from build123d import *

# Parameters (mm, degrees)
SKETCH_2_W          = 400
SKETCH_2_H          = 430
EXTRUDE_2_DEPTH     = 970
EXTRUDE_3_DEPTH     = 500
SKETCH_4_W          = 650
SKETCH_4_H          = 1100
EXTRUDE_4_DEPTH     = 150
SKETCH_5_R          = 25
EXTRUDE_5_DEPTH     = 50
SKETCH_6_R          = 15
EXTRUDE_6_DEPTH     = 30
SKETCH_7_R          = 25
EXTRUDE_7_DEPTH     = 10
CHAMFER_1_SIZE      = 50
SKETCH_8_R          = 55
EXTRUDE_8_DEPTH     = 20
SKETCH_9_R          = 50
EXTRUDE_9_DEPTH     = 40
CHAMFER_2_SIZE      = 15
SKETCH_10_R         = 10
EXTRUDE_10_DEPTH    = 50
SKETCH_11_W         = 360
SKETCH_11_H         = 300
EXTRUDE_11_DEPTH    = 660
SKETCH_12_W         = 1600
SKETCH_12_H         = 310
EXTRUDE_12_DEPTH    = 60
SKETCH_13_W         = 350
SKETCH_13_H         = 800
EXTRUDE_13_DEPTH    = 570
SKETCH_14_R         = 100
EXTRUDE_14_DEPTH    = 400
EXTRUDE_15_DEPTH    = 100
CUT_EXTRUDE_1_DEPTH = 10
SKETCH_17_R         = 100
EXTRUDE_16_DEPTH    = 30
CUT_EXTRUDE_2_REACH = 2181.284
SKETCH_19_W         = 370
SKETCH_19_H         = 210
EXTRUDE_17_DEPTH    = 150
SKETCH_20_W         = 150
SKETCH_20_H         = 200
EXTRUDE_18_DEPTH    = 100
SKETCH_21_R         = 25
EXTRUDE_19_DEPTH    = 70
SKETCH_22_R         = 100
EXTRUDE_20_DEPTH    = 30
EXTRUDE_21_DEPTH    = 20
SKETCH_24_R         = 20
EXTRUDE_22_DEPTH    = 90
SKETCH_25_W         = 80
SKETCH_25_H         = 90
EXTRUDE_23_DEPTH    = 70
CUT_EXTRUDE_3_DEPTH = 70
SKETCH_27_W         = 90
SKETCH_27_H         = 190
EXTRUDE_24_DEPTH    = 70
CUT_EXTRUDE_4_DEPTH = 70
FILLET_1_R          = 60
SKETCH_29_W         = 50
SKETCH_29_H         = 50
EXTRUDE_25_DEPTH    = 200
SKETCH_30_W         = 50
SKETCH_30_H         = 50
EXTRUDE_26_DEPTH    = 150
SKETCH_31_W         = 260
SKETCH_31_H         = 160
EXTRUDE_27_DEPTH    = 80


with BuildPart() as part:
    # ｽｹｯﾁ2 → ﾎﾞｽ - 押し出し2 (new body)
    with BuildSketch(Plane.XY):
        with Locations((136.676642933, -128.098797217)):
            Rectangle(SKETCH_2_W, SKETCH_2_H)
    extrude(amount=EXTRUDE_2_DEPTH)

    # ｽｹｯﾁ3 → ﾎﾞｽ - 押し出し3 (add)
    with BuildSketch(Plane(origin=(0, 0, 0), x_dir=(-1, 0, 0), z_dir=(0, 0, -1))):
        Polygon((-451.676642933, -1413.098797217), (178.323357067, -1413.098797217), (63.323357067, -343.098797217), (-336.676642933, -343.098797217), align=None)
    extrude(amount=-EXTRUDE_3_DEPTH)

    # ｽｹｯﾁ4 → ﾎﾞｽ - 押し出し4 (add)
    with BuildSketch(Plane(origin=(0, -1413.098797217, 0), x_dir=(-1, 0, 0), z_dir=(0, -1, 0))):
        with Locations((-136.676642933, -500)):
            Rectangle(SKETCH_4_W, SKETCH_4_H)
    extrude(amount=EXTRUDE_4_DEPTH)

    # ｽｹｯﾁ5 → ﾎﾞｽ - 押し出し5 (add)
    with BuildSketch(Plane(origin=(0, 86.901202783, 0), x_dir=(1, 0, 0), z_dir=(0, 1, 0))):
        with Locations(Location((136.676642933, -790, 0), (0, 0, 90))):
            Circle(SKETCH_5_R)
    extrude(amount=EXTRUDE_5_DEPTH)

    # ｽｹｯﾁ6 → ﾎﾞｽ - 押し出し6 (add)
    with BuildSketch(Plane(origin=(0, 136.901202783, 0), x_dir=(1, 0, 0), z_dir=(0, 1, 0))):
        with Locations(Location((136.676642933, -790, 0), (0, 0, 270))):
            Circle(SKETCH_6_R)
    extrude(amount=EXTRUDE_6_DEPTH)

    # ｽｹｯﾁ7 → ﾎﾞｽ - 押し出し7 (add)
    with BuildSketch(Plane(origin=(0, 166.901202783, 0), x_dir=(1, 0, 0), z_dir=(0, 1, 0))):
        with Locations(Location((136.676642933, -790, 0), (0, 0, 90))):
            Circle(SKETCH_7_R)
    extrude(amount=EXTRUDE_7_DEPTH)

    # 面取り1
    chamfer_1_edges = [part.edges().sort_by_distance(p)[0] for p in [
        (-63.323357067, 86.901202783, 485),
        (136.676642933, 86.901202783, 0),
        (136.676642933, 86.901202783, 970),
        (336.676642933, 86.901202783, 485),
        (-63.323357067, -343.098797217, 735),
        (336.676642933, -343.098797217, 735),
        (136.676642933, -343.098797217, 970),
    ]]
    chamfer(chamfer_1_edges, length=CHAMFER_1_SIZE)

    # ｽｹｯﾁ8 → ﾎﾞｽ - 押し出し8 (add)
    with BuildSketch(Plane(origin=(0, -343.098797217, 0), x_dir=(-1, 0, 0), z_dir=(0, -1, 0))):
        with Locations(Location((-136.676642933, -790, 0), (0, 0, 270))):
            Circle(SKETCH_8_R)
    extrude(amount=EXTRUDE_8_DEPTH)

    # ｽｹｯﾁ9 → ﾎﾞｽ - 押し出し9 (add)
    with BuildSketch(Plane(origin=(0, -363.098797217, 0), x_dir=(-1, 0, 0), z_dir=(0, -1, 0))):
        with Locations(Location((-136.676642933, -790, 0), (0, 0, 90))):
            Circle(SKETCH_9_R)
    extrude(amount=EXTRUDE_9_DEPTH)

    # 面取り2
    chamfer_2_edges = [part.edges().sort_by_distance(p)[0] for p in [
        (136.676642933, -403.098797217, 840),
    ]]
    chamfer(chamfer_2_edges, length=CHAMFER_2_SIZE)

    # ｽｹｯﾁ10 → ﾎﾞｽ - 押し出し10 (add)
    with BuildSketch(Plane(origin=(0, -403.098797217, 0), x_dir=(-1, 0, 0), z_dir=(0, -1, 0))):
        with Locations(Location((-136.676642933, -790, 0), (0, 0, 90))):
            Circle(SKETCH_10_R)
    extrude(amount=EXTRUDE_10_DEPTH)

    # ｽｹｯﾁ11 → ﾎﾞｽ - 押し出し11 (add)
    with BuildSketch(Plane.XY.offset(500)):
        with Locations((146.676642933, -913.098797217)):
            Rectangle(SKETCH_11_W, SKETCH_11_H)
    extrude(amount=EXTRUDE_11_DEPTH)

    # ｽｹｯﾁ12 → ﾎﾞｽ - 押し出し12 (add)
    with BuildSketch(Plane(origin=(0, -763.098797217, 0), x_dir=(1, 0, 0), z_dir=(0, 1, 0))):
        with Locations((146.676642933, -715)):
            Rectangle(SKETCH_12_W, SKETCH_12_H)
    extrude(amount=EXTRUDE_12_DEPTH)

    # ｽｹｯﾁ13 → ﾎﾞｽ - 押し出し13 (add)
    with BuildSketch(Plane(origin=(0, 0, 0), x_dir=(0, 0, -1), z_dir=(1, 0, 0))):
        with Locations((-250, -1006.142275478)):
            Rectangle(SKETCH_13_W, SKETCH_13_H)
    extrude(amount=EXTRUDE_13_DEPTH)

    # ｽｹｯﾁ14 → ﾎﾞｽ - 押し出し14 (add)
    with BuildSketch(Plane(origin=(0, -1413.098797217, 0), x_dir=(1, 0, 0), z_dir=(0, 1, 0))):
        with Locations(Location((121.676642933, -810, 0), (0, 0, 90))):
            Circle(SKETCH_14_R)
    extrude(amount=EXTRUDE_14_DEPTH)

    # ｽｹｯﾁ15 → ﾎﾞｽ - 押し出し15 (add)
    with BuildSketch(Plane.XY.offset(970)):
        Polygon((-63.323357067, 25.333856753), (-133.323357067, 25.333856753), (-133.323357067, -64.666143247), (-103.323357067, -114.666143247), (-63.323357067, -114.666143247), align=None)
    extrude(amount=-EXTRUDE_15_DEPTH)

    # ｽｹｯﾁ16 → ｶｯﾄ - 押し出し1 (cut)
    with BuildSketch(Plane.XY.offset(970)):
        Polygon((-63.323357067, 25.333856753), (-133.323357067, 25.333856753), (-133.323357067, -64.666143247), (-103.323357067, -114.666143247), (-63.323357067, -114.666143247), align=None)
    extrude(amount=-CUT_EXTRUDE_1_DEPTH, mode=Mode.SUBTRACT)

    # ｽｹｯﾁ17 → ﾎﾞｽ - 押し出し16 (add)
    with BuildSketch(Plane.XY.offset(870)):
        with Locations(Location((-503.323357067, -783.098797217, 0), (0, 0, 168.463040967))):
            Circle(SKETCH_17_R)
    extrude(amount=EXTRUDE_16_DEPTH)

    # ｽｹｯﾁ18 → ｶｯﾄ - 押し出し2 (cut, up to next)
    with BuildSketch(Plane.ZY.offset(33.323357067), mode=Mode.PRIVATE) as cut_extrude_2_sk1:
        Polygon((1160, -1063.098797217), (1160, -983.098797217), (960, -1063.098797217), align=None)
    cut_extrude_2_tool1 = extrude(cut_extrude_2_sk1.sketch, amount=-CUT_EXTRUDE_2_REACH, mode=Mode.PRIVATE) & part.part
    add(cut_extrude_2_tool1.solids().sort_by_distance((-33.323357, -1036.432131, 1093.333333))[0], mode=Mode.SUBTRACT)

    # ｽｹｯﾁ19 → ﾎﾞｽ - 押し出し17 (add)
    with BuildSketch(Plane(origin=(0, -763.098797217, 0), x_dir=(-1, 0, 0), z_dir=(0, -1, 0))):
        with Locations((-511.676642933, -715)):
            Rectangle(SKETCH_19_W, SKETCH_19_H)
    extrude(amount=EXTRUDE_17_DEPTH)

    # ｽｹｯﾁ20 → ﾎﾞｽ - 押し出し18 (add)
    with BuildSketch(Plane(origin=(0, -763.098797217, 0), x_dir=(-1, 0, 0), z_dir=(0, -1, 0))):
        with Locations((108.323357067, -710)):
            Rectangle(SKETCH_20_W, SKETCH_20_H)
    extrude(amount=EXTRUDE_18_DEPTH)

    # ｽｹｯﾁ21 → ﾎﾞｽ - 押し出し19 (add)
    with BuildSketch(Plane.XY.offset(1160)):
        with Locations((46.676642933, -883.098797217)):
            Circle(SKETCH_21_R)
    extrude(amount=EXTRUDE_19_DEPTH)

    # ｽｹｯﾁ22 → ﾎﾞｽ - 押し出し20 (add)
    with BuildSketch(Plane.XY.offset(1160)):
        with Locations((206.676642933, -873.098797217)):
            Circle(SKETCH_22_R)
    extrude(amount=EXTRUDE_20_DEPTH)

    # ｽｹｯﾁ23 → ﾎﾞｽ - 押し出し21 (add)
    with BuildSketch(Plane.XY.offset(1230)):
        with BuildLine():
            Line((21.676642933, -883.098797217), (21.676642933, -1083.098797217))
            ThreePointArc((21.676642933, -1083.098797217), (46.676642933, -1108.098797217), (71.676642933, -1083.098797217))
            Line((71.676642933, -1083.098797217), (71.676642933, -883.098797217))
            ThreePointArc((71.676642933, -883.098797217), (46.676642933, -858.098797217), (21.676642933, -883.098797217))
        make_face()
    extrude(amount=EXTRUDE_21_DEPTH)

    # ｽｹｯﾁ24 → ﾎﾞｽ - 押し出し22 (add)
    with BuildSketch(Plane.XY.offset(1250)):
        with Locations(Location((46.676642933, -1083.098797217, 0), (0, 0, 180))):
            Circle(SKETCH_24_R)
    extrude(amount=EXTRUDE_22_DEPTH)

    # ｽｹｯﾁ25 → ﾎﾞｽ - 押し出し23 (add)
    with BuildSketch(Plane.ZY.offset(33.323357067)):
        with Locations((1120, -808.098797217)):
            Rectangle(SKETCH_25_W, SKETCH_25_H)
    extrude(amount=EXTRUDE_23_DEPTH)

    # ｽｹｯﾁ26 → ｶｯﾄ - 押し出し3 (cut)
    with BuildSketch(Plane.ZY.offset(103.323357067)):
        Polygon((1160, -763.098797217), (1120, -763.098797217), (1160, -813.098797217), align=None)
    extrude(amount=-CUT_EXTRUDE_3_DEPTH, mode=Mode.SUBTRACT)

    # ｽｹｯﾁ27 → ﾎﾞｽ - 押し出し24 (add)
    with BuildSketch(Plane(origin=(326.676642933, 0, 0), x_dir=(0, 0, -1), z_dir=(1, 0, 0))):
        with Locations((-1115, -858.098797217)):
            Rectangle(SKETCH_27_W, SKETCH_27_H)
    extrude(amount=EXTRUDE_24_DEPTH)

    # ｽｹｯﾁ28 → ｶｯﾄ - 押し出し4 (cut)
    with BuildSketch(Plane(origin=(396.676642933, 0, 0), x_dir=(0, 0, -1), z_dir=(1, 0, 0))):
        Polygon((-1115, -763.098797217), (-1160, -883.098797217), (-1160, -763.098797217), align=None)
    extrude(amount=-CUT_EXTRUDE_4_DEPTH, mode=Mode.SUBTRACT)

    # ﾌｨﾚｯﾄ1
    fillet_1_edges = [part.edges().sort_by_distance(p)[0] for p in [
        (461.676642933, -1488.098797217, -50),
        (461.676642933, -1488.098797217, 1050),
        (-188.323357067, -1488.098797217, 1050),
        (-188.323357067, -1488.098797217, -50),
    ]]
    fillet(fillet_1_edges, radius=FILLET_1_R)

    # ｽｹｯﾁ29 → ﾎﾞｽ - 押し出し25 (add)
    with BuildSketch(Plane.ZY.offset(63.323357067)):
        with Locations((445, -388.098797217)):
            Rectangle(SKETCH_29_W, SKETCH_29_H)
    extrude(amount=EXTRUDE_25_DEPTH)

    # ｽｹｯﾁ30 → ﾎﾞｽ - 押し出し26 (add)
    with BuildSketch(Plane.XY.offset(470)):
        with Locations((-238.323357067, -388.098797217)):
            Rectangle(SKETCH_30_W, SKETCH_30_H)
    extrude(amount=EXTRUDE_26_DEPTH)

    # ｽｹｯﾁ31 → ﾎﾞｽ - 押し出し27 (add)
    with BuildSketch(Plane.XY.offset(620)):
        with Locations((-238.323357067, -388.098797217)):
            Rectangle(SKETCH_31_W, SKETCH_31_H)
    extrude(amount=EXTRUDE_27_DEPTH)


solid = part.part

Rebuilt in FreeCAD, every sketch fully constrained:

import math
import FreeCAD as App
import Part
import Sketcher
from FreeCAD import Vector
Q = App.Units.Quantity


def edges_at(feature, points):
    """Names of the edges that pass closest to the given points."""
    edges = feature.Shape.Edges
    near = lambda p: min(range(len(edges)), key=lambda i: edges[i].distToShape(Part.Vertex(*p))[0])
    return sorted({f"Edge{near(p) + 1}" for p in points})

doc = App.newDocument("Part")
body = doc.addObject("PartDesign::Body", "Body")

# Sketch on XY plane
sketch1 = body.newObject("Sketcher::SketchObject", "Sketch")
sketch1.AttachmentSupport = (doc.getObject("XY_Plane"), [""])
sketch1.MapMode = "FlatFace"
sketch1.addGeometry([
    Part.LineSegment(Vector(-63.323357, 86.901203, 0), Vector(-63.323357, -343.098797, 0)),
    Part.LineSegment(Vector(-63.323357, -343.098797, 0), Vector(336.676643, -343.098797, 0)),
    Part.LineSegment(Vector(336.676643, -343.098797, 0), Vector(336.676643, 86.901203, 0)),
    Part.LineSegment(Vector(336.676643, 86.901203, 0), Vector(-63.323357, 86.901203, 0)),
], False)
sketch1.addConstraint([
    Sketcher.Constraint("Coincident", 0, 2, 1, 1),
    Sketcher.Constraint("Coincident", 1, 2, 2, 1),
    Sketcher.Constraint("Coincident", 2, 2, 3, 1),
    Sketcher.Constraint("Coincident", 3, 2, 0, 1),
    Sketcher.Constraint("Vertical", 0),
    Sketcher.Constraint("Horizontal", 1),
    Sketcher.Constraint("Vertical", 2),
    Sketcher.Constraint("Horizontal", 3),
    Sketcher.Constraint("DistanceX", 1, 1, 1, 2, Q("400 mm")),
    Sketcher.Constraint("DistanceY", 0, 2, 0, 1, Q("430 mm")),
    Sketcher.Constraint("DistanceX", 0, 2, -1, 1, Q("63.323357 mm")),
    Sketcher.Constraint("DistanceY", 0, 2, -1, 1, Q("343.098797 mm")),
])
pad1 = body.newObject("PartDesign::Pad", "Pad")
pad1.Profile = sketch1
pad1.Length = 970

# Sketch on XY plane
sketch2 = body.newObject("Sketcher::SketchObject", "Sketch001")
sketch2.AttachmentSupport = (doc.getObject("XY_Plane"), [""])
sketch2.MapMode = "FlatFace"
sketch2.addGeometry([
    Part.LineSegment(Vector(451.676643, -1413.098797, 0), Vector(-178.323357, -1413.098797, 0)),
    Part.LineSegment(Vector(-178.323357, -1413.098797, 0), Vector(-63.323357, -343.098797, 0)),
    Part.LineSegment(Vector(-63.323357, -343.098797, 0), Vector(336.676643, -343.098797, 0)),
    Part.LineSegment(Vector(336.676643, -343.098797, 0), Vector(451.676643, -1413.098797, 0)),
], False)
sketch2.addConstraint([
    Sketcher.Constraint("Coincident", 0, 2, 1, 1),
    Sketcher.Constraint("Coincident", 1, 2, 2, 1),
    Sketcher.Constraint("Coincident", 2, 2, 3, 1),
    Sketcher.Constraint("Coincident", 3, 2, 0, 1),
    Sketcher.Constraint("Horizontal", 0),
    Sketcher.Constraint("Horizontal", 2),
    Sketcher.Constraint("Equal", 1, 3),
    Sketcher.Constraint("DistanceX", 0, 2, 0, 1, Q("630 mm")),
    Sketcher.Constraint("DistanceX", 2, 1, 2, 2, Q("400 mm")),
    Sketcher.Constraint("DistanceY", 0, 2, 1, 2, Q("1070 mm")),
    Sketcher.Constraint("DistanceX", 0, 2, -1, 1, Q("178.323357 mm")),
    Sketcher.Constraint("DistanceY", 0, 2, -1, 1, Q("1413.098797 mm")),
])
pad2 = body.newObject("PartDesign::Pad", "Pad001")
pad2.Profile = sketch2
pad2.Length = 500

# Sketch on XZ plane
sketch3 = body.newObject("Sketcher::SketchObject", "Sketch002")
sketch3.AttachmentSupport = (doc.getObject("XZ_Plane"), [""])
sketch3.MapMode = "FlatFace"
sketch3.AttachmentOffset = App.Placement(Vector(0, 0, 1413.098797), App.Rotation())
sketch3.addGeometry([
    Part.LineSegment(Vector(461.676643, -50, 0), Vector(461.676643, 1050, 0)),
    Part.LineSegment(Vector(461.676643, 1050, 0), Vector(-188.323357, 1050, 0)),
    Part.LineSegment(Vector(-188.323357, 1050, 0), Vector(-188.323357, -50, 0)),
    Part.LineSegment(Vector(-188.323357, -50, 0), Vector(461.676643, -50, 0)),
], False)
sketch3.addConstraint([
    Sketcher.Constraint("Coincident", 0, 2, 1, 1),
    Sketcher.Constraint("Coincident", 1, 2, 2, 1),
    Sketcher.Constraint("Coincident", 2, 2, 3, 1),
    Sketcher.Constraint("Coincident", 3, 2, 0, 1),
    Sketcher.Constraint("Vertical", 0),
    Sketcher.Constraint("Horizontal", 1),
    Sketcher.Constraint("Vertical", 2),
    Sketcher.Constraint("Horizontal", 3),
    Sketcher.Constraint("DistanceX", 1, 2, 1, 1, Q("650 mm")),
    Sketcher.Constraint("DistanceY", 0, 1, 0, 2, Q("1100 mm")),
    Sketcher.Constraint("DistanceY", -1, 1, 0, 2, Q("1050 mm")),
    Sketcher.Constraint("DistanceX", -1, 1, 0, 2, Q("461.676643 mm")),
])
pad3 = body.newObject("PartDesign::Pad", "Pad002")
pad3.Profile = sketch3
pad3.Length = 150

# Sketch on XZ plane
sketch4 = body.newObject("Sketcher::SketchObject", "Sketch003")
sketch4.AttachmentSupport = (doc.getObject("XZ_Plane"), [""])
sketch4.MapMode = "FlatFace"
sketch4.AttachmentOffset = App.Placement(Vector(0, 0, -86.901203), App.Rotation())
sketch4.addGeometry(Part.Circle(Vector(136.676643, 790, 0), Vector(0, 0, 1), 25), False)
sketch4.addConstraint([
    Sketcher.Constraint("Diameter", 0, Q("50 mm")),
    Sketcher.Constraint("DistanceY", -1, 1, 0, 3, Q("790 mm")),
    Sketcher.Constraint("DistanceX", -1, 1, 0, 3, Q("136.676643 mm")),
])
pad4 = body.newObject("PartDesign::Pad", "Pad003")
pad4.Profile = sketch4
pad4.Length = 50
pad4.Reversed = True

# Sketch on XZ plane
sketch5 = body.newObject("Sketcher::SketchObject", "Sketch004")
sketch5.AttachmentSupport = (doc.getObject("XZ_Plane"), [""])
sketch5.MapMode = "FlatFace"
sketch5.AttachmentOffset = App.Placement(Vector(0, 0, -136.901203), App.Rotation())
sketch5.addGeometry(Part.Circle(Vector(136.676643, 790, 0), Vector(0, 0, 1), 15), False)
sketch5.addConstraint([
    Sketcher.Constraint("Diameter", 0, Q("30 mm")),
    Sketcher.Constraint("DistanceY", -1, 1, 0, 3, Q("790 mm")),
    Sketcher.Constraint("DistanceX", -1, 1, 0, 3, Q("136.676643 mm")),
])
pad5 = body.newObject("PartDesign::Pad", "Pad004")
pad5.Profile = sketch5
pad5.Length = 30
pad5.Reversed = True

# Sketch on XZ plane
sketch6 = body.newObject("Sketcher::SketchObject", "Sketch005")
sketch6.AttachmentSupport = (doc.getObject("XZ_Plane"), [""])
sketch6.MapMode = "FlatFace"
sketch6.AttachmentOffset = App.Placement(Vector(0, 0, -166.901203), App.Rotation())
sketch6.addGeometry(Part.Circle(Vector(136.676643, 790, 0), Vector(0, 0, 1), 25), False)
sketch6.addConstraint([
    Sketcher.Constraint("Diameter", 0, Q("50 mm")),
    Sketcher.Constraint("DistanceY", -1, 1, 0, 3, Q("790 mm")),
    Sketcher.Constraint("DistanceX", -1, 1, 0, 3, Q("136.676643 mm")),
])
pad6 = body.newObject("PartDesign::Pad", "Pad005")
pad6.Profile = sketch6
pad6.Length = 10
pad6.Reversed = True
doc.recompute()

chamfer = body.newObject("PartDesign::Chamfer", "Chamfer")
chamfer.Base = (pad6, edges_at(pad6, [
    (-63.323, 86.901, 485),
    (136.677, 86.901, 0),
    (136.677, 86.901, 970),
    (336.677, 86.901, 485),
    (-63.323, -343.099, 735),
    (336.677, -343.099, 735),
    (136.677, -343.099, 970),
]))
chamfer.Size = 50

# Sketch on XZ plane
sketch7 = body.newObject("Sketcher::SketchObject", "Sketch006")
sketch7.AttachmentSupport = (doc.getObject("XZ_Plane"), [""])
sketch7.MapMode = "FlatFace"
sketch7.AttachmentOffset = App.Placement(Vector(0, 0, 343.098797), App.Rotation())
sketch7.addGeometry(Part.Circle(Vector(136.676643, 790, 0), Vector(0, 0, 1), 55), False)
sketch7.addConstraint([
    Sketcher.Constraint("Diameter", 0, Q("110 mm")),
    Sketcher.Constraint("DistanceY", -1, 1, 0, 3, Q("790 mm")),
    Sketcher.Constraint("DistanceX", -1, 1, 0, 3, Q("136.676643 mm")),
])
pad7 = body.newObject("PartDesign::Pad", "Pad006")
pad7.Profile = sketch7
pad7.Length = 20

# Sketch on XZ plane
sketch8 = body.newObject("Sketcher::SketchObject", "Sketch007")
sketch8.AttachmentSupport = (doc.getObject("XZ_Plane"), [""])
sketch8.MapMode = "FlatFace"
sketch8.AttachmentOffset = App.Placement(Vector(0, 0, 363.098797), App.Rotation())
sketch8.addGeometry(Part.Circle(Vector(136.676643, 790, 0), Vector(0, 0, 1), 50), False)
sketch8.addConstraint([
    Sketcher.Constraint("Diameter", 0, Q("100 mm")),
    Sketcher.Constraint("DistanceY", -1, 1, 0, 3, Q("790 mm")),
    Sketcher.Constraint("DistanceX", -1, 1, 0, 3, Q("136.676643 mm")),
])
pad8 = body.newObject("PartDesign::Pad", "Pad007")
pad8.Profile = sketch8
pad8.Length = 40
doc.recompute()

chamfer2 = body.newObject("PartDesign::Chamfer", "Chamfer001")
chamfer2.Base = (pad8, edges_at(pad8, [(136.677, -403.099, 840)]))
chamfer2.Size = 15

# Sketch on XZ plane
sketch9 = body.newObject("Sketcher::SketchObject", "Sketch008")
sketch9.AttachmentSupport = (doc.getObject("XZ_Plane"), [""])
sketch9.MapMode = "FlatFace"
sketch9.AttachmentOffset = App.Placement(Vector(0, 0, 403.098797), App.Rotation())
sketch9.addGeometry(Part.Circle(Vector(136.676643, 790, 0), Vector(0, 0, 1), 10), False)
sketch9.addConstraint([
    Sketcher.Constraint("Diameter", 0, Q("20 mm")),
    Sketcher.Constraint("DistanceY", -1, 1, 0, 3, Q("790 mm")),
    Sketcher.Constraint("DistanceX", -1, 1, 0, 3, Q("136.676643 mm")),
])
pad9 = body.newObject("PartDesign::Pad", "Pad008")
pad9.Profile = sketch9
pad9.Length = 50

# Sketch on XY plane
sketch10 = body.newObject("Sketcher::SketchObject", "Sketch009")
sketch10.AttachmentSupport = (doc.getObject("XY_Plane"), [""])
sketch10.MapMode = "FlatFace"
sketch10.AttachmentOffset = App.Placement(Vector(0, 0, 500), App.Rotation())
sketch10.addGeometry([
    Part.LineSegment(Vector(-33.323357, -763.098797, 0), Vector(-33.323357, -1063.098797, 0)),
    Part.LineSegment(Vector(-33.323357, -1063.098797, 0), Vector(326.676643, -1063.098797, 0)),
    Part.LineSegment(Vector(326.676643, -1063.098797, 0), Vector(326.676643, -763.098797, 0)),
    Part.LineSegment(Vector(326.676643, -763.098797, 0), Vector(-33.323357, -763.098797, 0)),
], False)
sketch10.addConstraint([
    Sketcher.Constraint("Coincident", 0, 2, 1, 1),
    Sketcher.Constraint("Coincident", 1, 2, 2, 1),
    Sketcher.Constraint("Coincident", 2, 2, 3, 1),
    Sketcher.Constraint("Coincident", 3, 2, 0, 1),
    Sketcher.Constraint("Vertical", 0),
    Sketcher.Constraint("Horizontal", 1),
    Sketcher.Constraint("Vertical", 2),
    Sketcher.Constraint("Horizontal", 3),
    Sketcher.Constraint("DistanceX", 1, 1, 1, 2, Q("360 mm")),
    Sketcher.Constraint("DistanceY", 0, 2, 0, 1, Q("300 mm")),
    Sketcher.Constraint("DistanceX", 0, 2, -1, 1, Q("33.323357 mm")),
    Sketcher.Constraint("DistanceY", 0, 2, -1, 1, Q("1063.098797 mm")),
])
pad10 = body.newObject("PartDesign::Pad", "Pad009")
pad10.Profile = sketch10
pad10.Length = 660

# Sketch on XZ plane
sketch11 = body.newObject("Sketcher::SketchObject", "Sketch010")
sketch11.AttachmentSupport = (doc.getObject("XZ_Plane"), [""])
sketch11.MapMode = "FlatFace"
sketch11.AttachmentOffset = App.Placement(Vector(0, 0, 763.098797), App.Rotation())
sketch11.addGeometry([
    Part.LineSegment(Vector(-653.323357, 560, 0), Vector(-653.323357, 870, 0)),
    Part.LineSegment(Vector(-653.323357, 870, 0), Vector(946.676643, 870, 0)),
    Part.LineSegment(Vector(946.676643, 870, 0), Vector(946.676643, 560, 0)),
    Part.LineSegment(Vector(946.676643, 560, 0), Vector(-653.323357, 560, 0)),
], False)
sketch11.addConstraint([
    Sketcher.Constraint("Coincident", 0, 2, 1, 1),
    Sketcher.Constraint("Coincident", 1, 2, 2, 1),
    Sketcher.Constraint("Coincident", 2, 2, 3, 1),
    Sketcher.Constraint("Coincident", 3, 2, 0, 1),
    Sketcher.Constraint("Vertical", 0),
    Sketcher.Constraint("Horizontal", 1),
    Sketcher.Constraint("Vertical", 2),
    Sketcher.Constraint("Horizontal", 3),
    Sketcher.Constraint("DistanceX", 1, 1, 1, 2, Q("1600 mm")),
    Sketcher.Constraint("DistanceY", 0, 1, 0, 2, Q("310 mm")),
    Sketcher.Constraint("DistanceY", -1, 1, 0, 2, Q("870 mm")),
    Sketcher.Constraint("DistanceX", 0, 2, -1, 1, Q("653.323357 mm")),
])
pad11 = body.newObject("PartDesign::Pad", "Pad010")
pad11.Profile = sketch11
pad11.Length = 60
pad11.Reversed = True

# Sketch on YZ plane
sketch12 = body.newObject("Sketcher::SketchObject", "Sketch011")
sketch12.AttachmentSupport = (doc.getObject("YZ_Plane"), [""])
sketch12.MapMode = "FlatFace"
sketch12.addGeometry([
    Part.LineSegment(Vector(-606.142275, 425, 0), Vector(-1406.142275, 425, 0)),
    Part.LineSegment(Vector(-1406.142275, 425, 0), Vector(-1406.142275, 75, 0)),
    Part.LineSegment(Vector(-1406.142275, 75, 0), Vector(-606.142275, 75, 0)),
    Part.LineSegment(Vector(-606.142275, 75, 0), Vector(-606.142275, 425, 0)),
], False)
sketch12.addConstraint([
    Sketcher.Constraint("Coincident", 0, 2, 1, 1),
    Sketcher.Constraint("Coincident", 1, 2, 2, 1),
    Sketcher.Constraint("Coincident", 2, 2, 3, 1),
    Sketcher.Constraint("Coincident", 3, 2, 0, 1),
    Sketcher.Constraint("Horizontal", 0),
    Sketcher.Constraint("Vertical", 1),
    Sketcher.Constraint("Horizontal", 2),
    Sketcher.Constraint("Vertical", 3),
    Sketcher.Constraint("DistanceX", 0, 2, 0, 1, Q("800 mm")),
    Sketcher.Constraint("DistanceY", 1, 2, 1, 1, Q("350 mm")),
    Sketcher.Constraint("DistanceY", -1, 1, 0, 2, Q("425 mm")),
    Sketcher.Constraint("DistanceX", 0, 2, -1, 1, Q("1406.142275 mm")),
])
pad12 = body.newObject("PartDesign::Pad", "Pad011")
pad12.Profile = sketch12
pad12.Length = 570

# Sketch on XZ plane
sketch13 = body.newObject("Sketcher::SketchObject", "Sketch012")
sketch13.AttachmentSupport = (doc.getObject("XZ_Plane"), [""])
sketch13.MapMode = "FlatFace"
sketch13.AttachmentOffset = App.Placement(Vector(0, 0, 1413.098797), App.Rotation())
sketch13.addGeometry(Part.Circle(Vector(121.676643, 810, 0), Vector(0, 0, 1), 100), False)
sketch13.addConstraint([
    Sketcher.Constraint("Diameter", 0, Q("200 mm")),
    Sketcher.Constraint("DistanceY", -1, 1, 0, 3, Q("810 mm")),
    Sketcher.Constraint("DistanceX", -1, 1, 0, 3, Q("121.676643 mm")),
])
pad13 = body.newObject("PartDesign::Pad", "Pad012")
pad13.Profile = sketch13
pad13.Length = 400
pad13.Reversed = True

# Sketch on XY plane
sketch14 = body.newObject("Sketcher::SketchObject", "Sketch013")
sketch14.AttachmentSupport = (doc.getObject("XY_Plane"), [""])
sketch14.MapMode = "FlatFace"
sketch14.AttachmentOffset = App.Placement(Vector(0, 0, 970), App.Rotation())
sketch14.addGeometry([
    Part.LineSegment(Vector(-63.323357, 25.333857, 0), Vector(-133.323357, 25.333857, 0)),  # 0
    Part.LineSegment(Vector(-133.323357, 25.333857, 0), Vector(-133.323357, -64.666143, 0)),  # 1
    Part.LineSegment(Vector(-133.323357, -64.666143, 0), Vector(-103.323357, -114.666143, 0)),  # 2
    Part.LineSegment(Vector(-103.323357, -114.666143, 0), Vector(-63.323357, -114.666143, 0)),  # 3
    Part.LineSegment(Vector(-63.323357, -114.666143, 0), Vector(-63.323357, 25.333857, 0)),  # 4
], False)
sketch14.addConstraint([
    Sketcher.Constraint("Coincident", 0, 2, 1, 1),
    Sketcher.Constraint("Coincident", 1, 2, 2, 1),
    Sketcher.Constraint("Coincident", 2, 2, 3, 1),
    Sketcher.Constraint("Coincident", 3, 2, 4, 1),
    Sketcher.Constraint("Coincident", 4, 2, 0, 1),
    Sketcher.Constraint("Horizontal", 0),
    Sketcher.Constraint("Vertical", 1),
    Sketcher.Constraint("Horizontal", 3),
    Sketcher.Constraint("Vertical", 4),
    Sketcher.Constraint("DistanceX", 0, 2, 0, 1, Q("70 mm")),
    Sketcher.Constraint("DistanceX", 3, 1, 3, 2, Q("40 mm")),
    Sketcher.Constraint("DistanceY", 1, 2, 1, 1, Q("90 mm")),
    Sketcher.Constraint("DistanceY", 4, 1, 4, 2, Q("140 mm")),
    Sketcher.Constraint("DistanceX", 0, 2, -1, 1, Q("133.323357 mm")),
    Sketcher.Constraint("DistanceY", -1, 1, 0, 2, Q("25.333857 mm")),
])
pad14 = body.newObject("PartDesign::Pad", "Pad013")
pad14.Profile = sketch14
pad14.Length = 100
pad14.Reversed = True

# Sketch on XY plane
sketch15 = body.newObject("Sketcher::SketchObject", "Sketch014")
sketch15.AttachmentSupport = (doc.getObject("XY_Plane"), [""])
sketch15.MapMode = "FlatFace"
sketch15.AttachmentOffset = App.Placement(Vector(0, 0, 970), App.Rotation())
sketch15.addGeometry([
    Part.LineSegment(Vector(-63.323357, 25.333857, 0), Vector(-133.323357, 25.333857, 0)),  # 0
    Part.LineSegment(Vector(-133.323357, 25.333857, 0), Vector(-133.323357, -64.666143, 0)),  # 1
    Part.LineSegment(Vector(-133.323357, -64.666143, 0), Vector(-103.323357, -114.666143, 0)),  # 2
    Part.LineSegment(Vector(-103.323357, -114.666143, 0), Vector(-63.323357, -114.666143, 0)),  # 3
    Part.LineSegment(Vector(-63.323357, -114.666143, 0), Vector(-63.323357, 25.333857, 0)),  # 4
], False)
sketch15.addConstraint([
    Sketcher.Constraint("Coincident", 0, 2, 1, 1),
    Sketcher.Constraint("Coincident", 1, 2, 2, 1),
    Sketcher.Constraint("Coincident", 2, 2, 3, 1),
    Sketcher.Constraint("Coincident", 3, 2, 4, 1),
    Sketcher.Constraint("Coincident", 4, 2, 0, 1),
    Sketcher.Constraint("Horizontal", 0),
    Sketcher.Constraint("Vertical", 1),
    Sketcher.Constraint("Horizontal", 3),
    Sketcher.Constraint("Vertical", 4),
    Sketcher.Constraint("DistanceX", 0, 2, 0, 1, Q("70 mm")),
    Sketcher.Constraint("DistanceX", 3, 1, 3, 2, Q("40 mm")),
    Sketcher.Constraint("DistanceY", 1, 2, 1, 1, Q("90 mm")),
    Sketcher.Constraint("DistanceY", 4, 1, 4, 2, Q("140 mm")),
    Sketcher.Constraint("DistanceX", 0, 2, -1, 1, Q("133.323357 mm")),
    Sketcher.Constraint("DistanceY", -1, 1, 0, 2, Q("25.333857 mm")),
])
pocket1 = body.newObject("PartDesign::Pocket", "Pocket")
pocket1.Profile = sketch15
pocket1.Length = 10

# Sketch on XY plane
sketch16 = body.newObject("Sketcher::SketchObject", "Sketch015")
sketch16.AttachmentSupport = (doc.getObject("XY_Plane"), [""])
sketch16.MapMode = "FlatFace"
sketch16.AttachmentOffset = App.Placement(Vector(0, 0, 870), App.Rotation())
sketch16.addGeometry(Part.Circle(Vector(-503.323357, -783.098797, 0), Vector(0, 0, 1), 100), False)
sketch16.addConstraint([
    Sketcher.Constraint("Diameter", 0, Q("200 mm")),
    Sketcher.Constraint("DistanceX", 0, 3, -1, 1, Q("503.323357 mm")),
    Sketcher.Constraint("DistanceY", 0, 3, -1, 1, Q("783.098797 mm")),
])
pad15 = body.newObject("PartDesign::Pad", "Pad014")
pad15.Profile = sketch16
pad15.Length = 30

# Sketch on YZ plane
sketch17 = body.newObject("Sketcher::SketchObject", "Sketch016")
sketch17.AttachmentSupport = (doc.getObject("YZ_Plane"), [""])
sketch17.MapMode = "FlatFace"
sketch17.AttachmentOffset = App.Placement(Vector(0, 0, -33.323357), App.Rotation())
sketch17.addGeometry([
    Part.LineSegment(Vector(-1063.098797, 1160, 0), Vector(-983.098797, 1160, 0)),
    Part.LineSegment(Vector(-983.098797, 1160, 0), Vector(-1063.098797, 960, 0)),
    Part.LineSegment(Vector(-1063.098797, 960, 0), Vector(-1063.098797, 1160, 0)),
], False)
sketch17.addConstraint([
    Sketcher.Constraint("Coincident", 0, 2, 1, 1),
    Sketcher.Constraint("Coincident", 1, 2, 2, 1),
    Sketcher.Constraint("Coincident", 2, 2, 0, 1),
    Sketcher.Constraint("Horizontal", 0),
    Sketcher.Constraint("Vertical", 2),
    Sketcher.Constraint("DistanceX", 0, 1, 0, 2, Q("80 mm")),
    Sketcher.Constraint("DistanceY", 2, 1, 2, 2, Q("200 mm")),
    Sketcher.Constraint("DistanceY", -1, 1, 0, 2, Q("1160 mm")),
    Sketcher.Constraint("DistanceX", 0, 2, -1, 1, Q("983.098797 mm")),
])
pocket2 = body.newObject("PartDesign::Pocket", "Pocket001")
pocket2.Profile = sketch17
pocket2.Type = "UpToFirst"
pocket2.Reversed = True

# Sketch on XZ plane
sketch18 = body.newObject("Sketcher::SketchObject", "Sketch017")
sketch18.AttachmentSupport = (doc.getObject("XZ_Plane"), [""])
sketch18.MapMode = "FlatFace"
sketch18.AttachmentOffset = App.Placement(Vector(0, 0, 763.098797), App.Rotation())
sketch18.addGeometry([
    Part.LineSegment(Vector(696.676643, 610, 0), Vector(696.676643, 820, 0)),
    Part.LineSegment(Vector(696.676643, 820, 0), Vector(326.676643, 820, 0)),
    Part.LineSegment(Vector(326.676643, 820, 0), Vector(326.676643, 610, 0)),
    Part.LineSegment(Vector(326.676643, 610, 0), Vector(696.676643, 610, 0)),
], False)
sketch18.addConstraint([
    Sketcher.Constraint("Coincident", 0, 2, 1, 1),
    Sketcher.Constraint("Coincident", 1, 2, 2, 1),
    Sketcher.Constraint("Coincident", 2, 2, 3, 1),
    Sketcher.Constraint("Coincident", 3, 2, 0, 1),
    Sketcher.Constraint("Vertical", 0),
    Sketcher.Constraint("Horizontal", 1),
    Sketcher.Constraint("Vertical", 2),
    Sketcher.Constraint("Horizontal", 3),
    Sketcher.Constraint("DistanceX", 1, 2, 1, 1, Q("370 mm")),
    Sketcher.Constraint("DistanceY", 0, 1, 0, 2, Q("210 mm")),
    Sketcher.Constraint("DistanceY", -1, 1, 0, 2, Q("820 mm")),
    Sketcher.Constraint("DistanceX", -1, 1, 0, 2, Q("696.676643 mm")),
])
pad16 = body.newObject("PartDesign::Pad", "Pad015")
pad16.Profile = sketch18
pad16.Length = 150

# Sketch on XZ plane
sketch19 = body.newObject("Sketcher::SketchObject", "Sketch018")
sketch19.AttachmentSupport = (doc.getObject("XZ_Plane"), [""])
sketch19.MapMode = "FlatFace"
sketch19.AttachmentOffset = App.Placement(Vector(0, 0, 763.098797), App.Rotation())
sketch19.addGeometry([
    Part.LineSegment(Vector(-33.323357, 610, 0), Vector(-33.323357, 810, 0)),
    Part.LineSegment(Vector(-33.323357, 810, 0), Vector(-183.323357, 810, 0)),
    Part.LineSegment(Vector(-183.323357, 810, 0), Vector(-183.323357, 610, 0)),
    Part.LineSegment(Vector(-183.323357, 610, 0), Vector(-33.323357, 610, 0)),
], False)
sketch19.addConstraint([
    Sketcher.Constraint("Coincident", 0, 2, 1, 1),
    Sketcher.Constraint("Coincident", 1, 2, 2, 1),
    Sketcher.Constraint("Coincident", 2, 2, 3, 1),
    Sketcher.Constraint("Coincident", 3, 2, 0, 1),
    Sketcher.Constraint("Vertical", 0),
    Sketcher.Constraint("Horizontal", 1),
    Sketcher.Constraint("Vertical", 2),
    Sketcher.Constraint("Horizontal", 3),
    Sketcher.Constraint("DistanceX", 1, 2, 1, 1, Q("150 mm")),
    Sketcher.Constraint("DistanceY", 0, 1, 0, 2, Q("200 mm")),
    Sketcher.Constraint("DistanceY", -1, 1, 0, 2, Q("810 mm")),
    Sketcher.Constraint("DistanceX", 0, 2, -1, 1, Q("33.323357 mm")),
])
pad17 = body.newObject("PartDesign::Pad", "Pad016")
pad17.Profile = sketch19
pad17.Length = 100

# Sketch on XY plane
sketch20 = body.newObject("Sketcher::SketchObject", "Sketch019")
sketch20.AttachmentSupport = (doc.getObject("XY_Plane"), [""])
sketch20.MapMode = "FlatFace"
sketch20.AttachmentOffset = App.Placement(Vector(0, 0, 1160), App.Rotation())
sketch20.addGeometry(Part.Circle(Vector(46.676643, -883.098797, 0), Vector(0, 0, 1), 25), False)
sketch20.addConstraint([
    Sketcher.Constraint("Diameter", 0, Q("50 mm")),
    Sketcher.Constraint("DistanceX", -1, 1, 0, 3, Q("46.676643 mm")),
    Sketcher.Constraint("DistanceY", 0, 3, -1, 1, Q("883.098797 mm")),
])
pad18 = body.newObject("PartDesign::Pad", "Pad017")
pad18.Profile = sketch20
pad18.Length = 70

# Sketch on XY plane
sketch21 = body.newObject("Sketcher::SketchObject", "Sketch020")
sketch21.AttachmentSupport = (doc.getObject("XY_Plane"), [""])
sketch21.MapMode = "FlatFace"
sketch21.AttachmentOffset = App.Placement(Vector(0, 0, 1160), App.Rotation())
sketch21.addGeometry(Part.Circle(Vector(206.676643, -873.098797, 0), Vector(0, 0, 1), 100), False)
sketch21.addConstraint([
    Sketcher.Constraint("Diameter", 0, Q("200 mm")),
    Sketcher.Constraint("DistanceX", -1, 1, 0, 3, Q("206.676643 mm")),
    Sketcher.Constraint("DistanceY", 0, 3, -1, 1, Q("873.098797 mm")),
])
pad19 = body.newObject("PartDesign::Pad", "Pad018")
pad19.Profile = sketch21
pad19.Length = 30

# Sketch on XY plane
sketch22 = body.newObject("Sketcher::SketchObject", "Sketch021")
sketch22.AttachmentSupport = (doc.getObject("XY_Plane"), [""])
sketch22.MapMode = "FlatFace"
sketch22.AttachmentOffset = App.Placement(Vector(0, 0, 1230), App.Rotation())
sketch22.addGeometry([
    Part.LineSegment(Vector(21.676643, -883.098797, 0), Vector(21.676643, -1083.098797, 0)),
    Part.ArcOfCircle(Part.Circle(Vector(46.676643, -1083.098797, 0), Vector(0, 0, 1), 25), math.radians(180), math.radians(360)),
    Part.LineSegment(Vector(71.676643, -1083.098797, 0), Vector(71.676643, -883.098797, 0)),
    Part.ArcOfCircle(Part.Circle(Vector(46.676643, -883.098797, 0), Vector(0, 0, 1), 25), math.radians(0), math.radians(180)),
], False)
sketch22.addConstraint([
    Sketcher.Constraint("Tangent", 0, 2, 1, 1),
    Sketcher.Constraint("Tangent", 1, 2, 2, 1),
    Sketcher.Constraint("Tangent", 2, 2, 3, 1),
    Sketcher.Constraint("Tangent", 3, 2, 0, 1),
    Sketcher.Constraint("Vertical", 0),
    Sketcher.Constraint("Vertical", 2),
    Sketcher.Constraint("Radius", 1, Q("25 mm")),
    Sketcher.Constraint("DistanceY", 0, 2, 0, 1, Q("200 mm")),
    Sketcher.Constraint("DistanceX", -1, 1, 1, 3, Q("46.676643 mm")),
    Sketcher.Constraint("DistanceY", 1, 3, -1, 1, Q("1083.098797 mm")),
])
pad20 = body.newObject("PartDesign::Pad", "Pad019")
pad20.Profile = sketch22
pad20.Length = 20

# Sketch on XY plane
sketch23 = body.newObject("Sketcher::SketchObject", "Sketch022")
sketch23.AttachmentSupport = (doc.getObject("XY_Plane"), [""])
sketch23.MapMode = "FlatFace"
sketch23.AttachmentOffset = App.Placement(Vector(0, 0, 1250), App.Rotation())
sketch23.addGeometry(Part.Circle(Vector(46.676643, -1083.098797, 0), Vector(0, 0, 1), 20), False)
sketch23.addConstraint([
    Sketcher.Constraint("Diameter", 0, Q("40 mm")),
    Sketcher.Constraint("DistanceX", -1, 1, 0, 3, Q("46.676643 mm")),
    Sketcher.Constraint("DistanceY", 0, 3, -1, 1, Q("1083.098797 mm")),
])
pad21 = body.newObject("PartDesign::Pad", "Pad020")
pad21.Profile = sketch23
pad21.Length = 90

# Sketch on YZ plane
sketch24 = body.newObject("Sketcher::SketchObject", "Sketch023")
sketch24.AttachmentSupport = (doc.getObject("YZ_Plane"), [""])
sketch24.MapMode = "FlatFace"
sketch24.AttachmentOffset = App.Placement(Vector(0, 0, -33.323357), App.Rotation())
sketch24.addGeometry([
    Part.LineSegment(Vector(-763.098797, 1080, 0), Vector(-853.098797, 1080, 0)),
    Part.LineSegment(Vector(-853.098797, 1080, 0), Vector(-853.098797, 1160, 0)),
    Part.LineSegment(Vector(-853.098797, 1160, 0), Vector(-763.098797, 1160, 0)),
    Part.LineSegment(Vector(-763.098797, 1160, 0), Vector(-763.098797, 1080, 0)),
], False)
sketch24.addConstraint([
    Sketcher.Constraint("Coincident", 0, 2, 1, 1),
    Sketcher.Constraint("Coincident", 1, 2, 2, 1),
    Sketcher.Constraint("Coincident", 2, 2, 3, 1),
    Sketcher.Constraint("Coincident", 3, 2, 0, 1),
    Sketcher.Constraint("Horizontal", 0),
    Sketcher.Constraint("Vertical", 1),
    Sketcher.Constraint("Horizontal", 2),
    Sketcher.Constraint("Vertical", 3),
    Sketcher.Constraint("DistanceX", 0, 2, 0, 1, Q("90 mm")),
    Sketcher.Constraint("DistanceY", 1, 1, 1, 2, Q("80 mm")),
    Sketcher.Constraint("DistanceY", -1, 1, 0, 2, Q("1080 mm")),
    Sketcher.Constraint("DistanceX", 0, 2, -1, 1, Q("853.098797 mm")),
])
pad22 = body.newObject("PartDesign::Pad", "Pad021")
pad22.Profile = sketch24
pad22.Length = 70
pad22.Reversed = True

# Sketch on YZ plane
sketch25 = body.newObject("Sketcher::SketchObject", "Sketch024")
sketch25.AttachmentSupport = (doc.getObject("YZ_Plane"), [""])
sketch25.MapMode = "FlatFace"
sketch25.AttachmentOffset = App.Placement(Vector(0, 0, -103.323357), App.Rotation())
sketch25.addGeometry([
    Part.LineSegment(Vector(-763.098797, 1160, 0), Vector(-763.098797, 1120, 0)),
    Part.LineSegment(Vector(-763.098797, 1120, 0), Vector(-813.098797, 1160, 0)),
    Part.LineSegment(Vector(-813.098797, 1160, 0), Vector(-763.098797, 1160, 0)),
], False)
sketch25.addConstraint([
    Sketcher.Constraint("Coincident", 0, 2, 1, 1),
    Sketcher.Constraint("Coincident", 1, 2, 2, 1),
    Sketcher.Constraint("Coincident", 2, 2, 0, 1),
    Sketcher.Constraint("Vertical", 0),
    Sketcher.Constraint("Horizontal", 2),
    Sketcher.Constraint("DistanceX", 2, 1, 2, 2, Q("50 mm")),
    Sketcher.Constraint("DistanceY", 0, 2, 0, 1, Q("40 mm")),
    Sketcher.Constraint("DistanceY", -1, 1, 0, 2, Q("1120 mm")),
    Sketcher.Constraint("DistanceX", 0, 2, -1, 1, Q("763.098797 mm")),
])
pocket3 = body.newObject("PartDesign::Pocket", "Pocket002")
pocket3.Profile = sketch25
pocket3.Length = 70
pocket3.Reversed = True

# Sketch on YZ plane
sketch26 = body.newObject("Sketcher::SketchObject", "Sketch025")
sketch26.AttachmentSupport = (doc.getObject("YZ_Plane"), [""])
sketch26.MapMode = "FlatFace"
sketch26.AttachmentOffset = App.Placement(Vector(0, 0, 326.676643), App.Rotation())
sketch26.addGeometry([
    Part.LineSegment(Vector(-763.098797, 1160, 0), Vector(-953.098797, 1160, 0)),
    Part.LineSegment(Vector(-953.098797, 1160, 0), Vector(-953.098797, 1070, 0)),
    Part.LineSegment(Vector(-953.098797, 1070, 0), Vector(-763.098797, 1070, 0)),
    Part.LineSegment(Vector(-763.098797, 1070, 0), Vector(-763.098797, 1160, 0)),
], False)
sketch26.addConstraint([
    Sketcher.Constraint("Coincident", 0, 2, 1, 1),
    Sketcher.Constraint("Coincident", 1, 2, 2, 1),
    Sketcher.Constraint("Coincident", 2, 2, 3, 1),
    Sketcher.Constraint("Coincident", 3, 2, 0, 1),
    Sketcher.Constraint("Horizontal", 0),
    Sketcher.Constraint("Vertical", 1),
    Sketcher.Constraint("Horizontal", 2),
    Sketcher.Constraint("Vertical", 3),
    Sketcher.Constraint("DistanceX", 0, 2, 0, 1, Q("190 mm")),
    Sketcher.Constraint("DistanceY", 1, 2, 1, 1, Q("90 mm")),
    Sketcher.Constraint("DistanceY", -1, 1, 0, 2, Q("1160 mm")),
    Sketcher.Constraint("DistanceX", 0, 2, -1, 1, Q("953.098797 mm")),
])
pad23 = body.newObject("PartDesign::Pad", "Pad022")
pad23.Profile = sketch26
pad23.Length = 70

# Sketch on YZ plane
sketch27 = body.newObject("Sketcher::SketchObject", "Sketch026")
sketch27.AttachmentSupport = (doc.getObject("YZ_Plane"), [""])
sketch27.MapMode = "FlatFace"
sketch27.AttachmentOffset = App.Placement(Vector(0, 0, 396.676643), App.Rotation())
sketch27.addGeometry([
    Part.LineSegment(Vector(-883.098797, 1160, 0), Vector(-763.098797, 1115, 0)),
    Part.LineSegment(Vector(-763.098797, 1115, 0), Vector(-763.098797, 1160, 0)),
    Part.LineSegment(Vector(-763.098797, 1160, 0), Vector(-883.098797, 1160, 0)),
], False)
sketch27.addConstraint([
    Sketcher.Constraint("Coincident", 0, 2, 1, 1),
    Sketcher.Constraint("Coincident", 1, 2, 2, 1),
    Sketcher.Constraint("Coincident", 2, 2, 0, 1),
    Sketcher.Constraint("Vertical", 1),
    Sketcher.Constraint("Horizontal", 2),
    Sketcher.Constraint("DistanceX", 2, 2, 2, 1, Q("120 mm")),
    Sketcher.Constraint("DistanceY", 1, 1, 1, 2, Q("45 mm")),
    Sketcher.Constraint("DistanceY", -1, 1, 0, 2, Q("1115 mm")),
    Sketcher.Constraint("DistanceX", 0, 2, -1, 1, Q("763.098797 mm")),
])
pocket4 = body.newObject("PartDesign::Pocket", "Pocket003")
pocket4.Profile = sketch27
pocket4.Length = 70
doc.recompute()

fillet = body.newObject("PartDesign::Fillet", "Fillet")
fillet.Base = (pocket4, edges_at(pocket4, [
    (461.677, -1488.099, -50),
    (461.677, -1488.099, 1050),
    (-188.323, -1488.099, 1050),
    (-188.323, -1488.099, -50),
]))
fillet.Radius = 60

# Sketch on YZ plane
sketch28 = body.newObject("Sketcher::SketchObject", "Sketch027")
sketch28.AttachmentSupport = (doc.getObject("YZ_Plane"), [""])
sketch28.MapMode = "FlatFace"
sketch28.AttachmentOffset = App.Placement(Vector(0, 0, -63.323357), App.Rotation())
sketch28.addGeometry([
    Part.LineSegment(Vector(-363.098797, 420, 0), Vector(-413.098797, 420, 0)),
    Part.LineSegment(Vector(-413.098797, 420, 0), Vector(-413.098797, 470, 0)),
    Part.LineSegment(Vector(-413.098797, 470, 0), Vector(-363.098797, 470, 0)),
    Part.LineSegment(Vector(-363.098797, 470, 0), Vector(-363.098797, 420, 0)),
], False)
sketch28.addConstraint([
    Sketcher.Constraint("Coincident", 0, 2, 1, 1),
    Sketcher.Constraint("Coincident", 1, 2, 2, 1),
    Sketcher.Constraint("Coincident", 2, 2, 3, 1),
    Sketcher.Constraint("Coincident", 3, 2, 0, 1),
    Sketcher.Constraint("Horizontal", 0),
    Sketcher.Constraint("Vertical", 1),
    Sketcher.Constraint("Horizontal", 2),
    Sketcher.Constraint("Vertical", 3),
    Sketcher.Constraint("Equal", 2, 1),
    Sketcher.Constraint("DistanceX", 0, 2, 0, 1, Q("50 mm")),
    Sketcher.Constraint("DistanceY", -1, 1, 0, 2, Q("420 mm")),
    Sketcher.Constraint("DistanceX", 0, 2, -1, 1, Q("413.098797 mm")),
])
pad24 = body.newObject("PartDesign::Pad", "Pad023")
pad24.Profile = sketch28
pad24.Length = 200
pad24.Reversed = True

# Sketch on XY plane
sketch29 = body.newObject("Sketcher::SketchObject", "Sketch028")
sketch29.AttachmentSupport = (doc.getObject("XY_Plane"), [""])
sketch29.MapMode = "FlatFace"
sketch29.AttachmentOffset = App.Placement(Vector(0, 0, 470), App.Rotation())
sketch29.addGeometry([
    Part.LineSegment(Vector(-263.323357, -363.098797, 0), Vector(-263.323357, -413.098797, 0)),
    Part.LineSegment(Vector(-263.323357, -413.098797, 0), Vector(-213.323357, -413.098797, 0)),
    Part.LineSegment(Vector(-213.323357, -413.098797, 0), Vector(-213.323357, -363.098797, 0)),
    Part.LineSegment(Vector(-213.323357, -363.098797, 0), Vector(-263.323357, -363.098797, 0)),
], False)
sketch29.addConstraint([
    Sketcher.Constraint("Coincident", 0, 2, 1, 1),
    Sketcher.Constraint("Coincident", 1, 2, 2, 1),
    Sketcher.Constraint("Coincident", 2, 2, 3, 1),
    Sketcher.Constraint("Coincident", 3, 2, 0, 1),
    Sketcher.Constraint("Vertical", 0),
    Sketcher.Constraint("Horizontal", 1),
    Sketcher.Constraint("Vertical", 2),
    Sketcher.Constraint("Horizontal", 3),
    Sketcher.Constraint("Equal", 3, 0),
    Sketcher.Constraint("DistanceX", 1, 1, 1, 2, Q("50 mm")),
    Sketcher.Constraint("DistanceX", 0, 2, -1, 1, Q("263.323357 mm")),
    Sketcher.Constraint("DistanceY", 0, 2, -1, 1, Q("413.098797 mm")),
])
pad25 = body.newObject("PartDesign::Pad", "Pad024")
pad25.Profile = sketch29
pad25.Length = 150

# Sketch on XY plane
sketch30 = body.newObject("Sketcher::SketchObject", "Sketch029")
sketch30.AttachmentSupport = (doc.getObject("XY_Plane"), [""])
sketch30.MapMode = "FlatFace"
sketch30.AttachmentOffset = App.Placement(Vector(0, 0, 620), App.Rotation())
sketch30.addGeometry([
    Part.LineSegment(Vector(-368.323357, -308.098797, 0), Vector(-368.323357, -468.098797, 0)),
    Part.LineSegment(Vector(-368.323357, -468.098797, 0), Vector(-108.323357, -468.098797, 0)),
    Part.LineSegment(Vector(-108.323357, -468.098797, 0), Vector(-108.323357, -308.098797, 0)),
    Part.LineSegment(Vector(-108.323357, -308.098797, 0), Vector(-368.323357, -308.098797, 0)),
], False)
sketch30.addConstraint([
    Sketcher.Constraint("Coincident", 0, 2, 1, 1),
    Sketcher.Constraint("Coincident", 1, 2, 2, 1),
    Sketcher.Constraint("Coincident", 2, 2, 3, 1),
    Sketcher.Constraint("Coincident", 3, 2, 0, 1),
    Sketcher.Constraint("Vertical", 0),
    Sketcher.Constraint("Horizontal", 1),
    Sketcher.Constraint("Vertical", 2),
    Sketcher.Constraint("Horizontal", 3),
    Sketcher.Constraint("DistanceX", 1, 1, 1, 2, Q("260 mm")),
    Sketcher.Constraint("DistanceY", 0, 2, 0, 1, Q("160 mm")),
    Sketcher.Constraint("DistanceX", 0, 2, -1, 1, Q("368.323357 mm")),
    Sketcher.Constraint("DistanceY", 0, 2, -1, 1, Q("468.098797 mm")),
])
pad26 = body.newObject("PartDesign::Pad", "Pad025")
pad26.Profile = sketch30
pad26.Length = 80

doc.recompute()
